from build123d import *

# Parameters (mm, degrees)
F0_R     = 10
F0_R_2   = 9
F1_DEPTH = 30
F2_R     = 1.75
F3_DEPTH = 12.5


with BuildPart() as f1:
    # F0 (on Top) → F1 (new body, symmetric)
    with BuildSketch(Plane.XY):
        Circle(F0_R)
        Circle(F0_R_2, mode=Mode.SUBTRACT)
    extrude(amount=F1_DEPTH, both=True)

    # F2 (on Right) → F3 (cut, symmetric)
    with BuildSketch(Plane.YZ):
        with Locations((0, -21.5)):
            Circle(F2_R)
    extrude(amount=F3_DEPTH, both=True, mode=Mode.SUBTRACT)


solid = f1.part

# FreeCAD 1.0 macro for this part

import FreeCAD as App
import Part
import Sketcher
Q = App.Units.Quantity

doc = App.newDocument("Part")
body = doc.addObject("PartDesign::Body", "Body")

sketch1 = body.newObject("Sketcher::SketchObject", "Sketch")
sketch1.AttachmentSupport = (doc.getObject("XY_Plane"), [""])
sketch1.MapMode = "FlatFace"
sketch1.addGeometry([
    Part.Circle(App.Vector(0, 0, 0), App.Vector(0, 0, 1), 10),
    Part.Circle(App.Vector(0, 0, 0), App.Vector(0, 0, 1), 9),
], False)
sketch1.addConstraint([
    Sketcher.Constraint("Coincident", 0, 3, -1, 1),
    Sketcher.Constraint("Coincident", 1, 3, -1, 1),
    Sketcher.Constraint("Diameter", 0, Q("20 mm")),
    Sketcher.Constraint("Diameter", 1, Q("18 mm")),
])
pad1 = body.newObject("PartDesign::Pad", "Pad")
pad1.Profile = sketch1
pad1.Length = 60
pad1.Midplane = True

sketch2 = body.newObject("Sketcher::SketchObject", "Sketch001")
sketch2.AttachmentSupport = (doc.getObject("YZ_Plane"), [""])
sketch2.MapMode = "FlatFace"
sketch2.addGeometry(Part.Circle(App.Vector(0, -21.5, 0), App.Vector(0, 0, 1), 1.75), False)
sketch2.addConstraint([
    Sketcher.Constraint("PointOnObject", 0, 3, -2),
    Sketcher.Constraint("Diameter", 0, Q("3.5 mm")),
    Sketcher.Constraint("DistanceY", 0, 3, -1, 1, Q("21.5 mm")),
])
pocket1 = body.newObject("PartDesign::Pocket", "Pocket")
pocket1.Profile = sketch2
pocket1.Length = 25
pocket1.Midplane = True

doc.recompute()
